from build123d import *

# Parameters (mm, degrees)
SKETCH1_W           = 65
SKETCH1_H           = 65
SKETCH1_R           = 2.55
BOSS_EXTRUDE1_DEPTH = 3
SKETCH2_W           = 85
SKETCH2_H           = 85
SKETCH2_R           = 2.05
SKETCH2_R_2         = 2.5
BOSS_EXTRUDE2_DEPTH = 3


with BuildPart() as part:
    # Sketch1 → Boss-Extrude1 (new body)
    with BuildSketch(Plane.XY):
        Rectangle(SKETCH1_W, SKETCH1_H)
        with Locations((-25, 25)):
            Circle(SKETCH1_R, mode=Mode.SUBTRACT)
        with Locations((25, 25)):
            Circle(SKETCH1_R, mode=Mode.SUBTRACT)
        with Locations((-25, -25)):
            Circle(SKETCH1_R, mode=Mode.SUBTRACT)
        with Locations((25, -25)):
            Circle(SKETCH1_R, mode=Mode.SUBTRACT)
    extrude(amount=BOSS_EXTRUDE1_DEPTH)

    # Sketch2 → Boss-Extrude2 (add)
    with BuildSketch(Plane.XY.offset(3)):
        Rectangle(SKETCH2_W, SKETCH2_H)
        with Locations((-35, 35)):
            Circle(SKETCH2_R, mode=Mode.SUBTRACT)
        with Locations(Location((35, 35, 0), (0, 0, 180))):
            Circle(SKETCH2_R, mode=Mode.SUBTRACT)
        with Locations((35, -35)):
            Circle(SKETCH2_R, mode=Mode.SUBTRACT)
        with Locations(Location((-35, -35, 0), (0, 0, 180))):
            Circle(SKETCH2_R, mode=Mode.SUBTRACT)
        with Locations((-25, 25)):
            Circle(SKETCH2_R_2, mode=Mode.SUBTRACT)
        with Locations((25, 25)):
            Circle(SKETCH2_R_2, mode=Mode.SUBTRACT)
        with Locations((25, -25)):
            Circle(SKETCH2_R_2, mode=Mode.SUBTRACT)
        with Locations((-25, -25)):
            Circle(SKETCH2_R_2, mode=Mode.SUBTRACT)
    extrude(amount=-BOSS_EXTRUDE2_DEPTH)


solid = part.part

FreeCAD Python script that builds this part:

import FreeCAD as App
import Part
import Sketcher

V = App.Vector

doc = App.newDocument("Part")
params = doc.addObject("Spreadsheet::Sheet", "Params")
for row, (alias, value) in enumerate([
    ("sketch1_diameter", "5.1 mm"),
    ("sketch1_width", "65 mm"),
    ("pad1_length", "3 mm"),
    ("sketch2_diameter", "5 mm"),
    ("sketch2_diameter2", "4.1 mm"),
    ("sketch2_width", "85 mm"),
    ("pad2_length", "3 mm"),
], start=1):
    params.set(f"A{row}", alias)
    params.set(f"B{row}", "=" + value)
    params.setAlias(f"B{row}", alias)

body = doc.addObject("PartDesign::Body", "Body")

sketch1 = body.newObject("Sketcher::SketchObject", "Sketch")
sketch1.AttachmentSupport = (doc.getObject("XY_Plane"), [""])
sketch1.MapMode = "FlatFace"
sketch1.addGeometry(Part.LineSegment(V(-32.5, 32.5, 0), V(-32.5, -32.5, 0)), False)
sketch1.addGeometry(Part.LineSegment(V(-32.5, -32.5, 0), V(32.5, -32.5, 0)), False)
sketch1.addGeometry(Part.LineSegment(V(32.5, -32.5, 0), V(32.5, 32.5, 0)), False)
sketch1.addGeometry(Part.LineSegment(V(32.5, 32.5, 0), V(-32.5, 32.5, 0)), False)
sketch1.addGeometry(Part.Circle(V(-25, -25, 0), V(0, 0, 1), 2.55), False)
sketch1.addGeometry(Part.Circle(V(25, -25, 0), V(0, 0, 1), 2.55), False)
sketch1.addGeometry(Part.Circle(V(-25, 25, 0), V(0, 0, 1), 2.55), False)
sketch1.addGeometry(Part.Circle(V(25, 25, 0), V(0, 0, 1), 2.55), False)
sketch1.addConstraint(Sketcher.Constraint("Coincident", 0, 2, 1, 1))
sketch1.addConstraint(Sketcher.Constraint("Coincident", 1, 2, 2, 1))
sketch1.addConstraint(Sketcher.Constraint("Coincident", 2, 2, 3, 1))
sketch1.addConstraint(Sketcher.Constraint("Coincident", 3, 2, 0, 1))
sketch1.addConstraint(Sketcher.Constraint("Vertical", 0))
sketch1.addConstraint(Sketcher.Constraint("Horizontal", 1))
sketch1.addConstraint(Sketcher.Constraint("Vertical", 2))
sketch1.addConstraint(Sketcher.Constraint("Horizontal", 3))
sketch1.addConstraint(Sketcher.Constraint("Equal", 4, 5))
sketch1.addConstraint(Sketcher.Constraint("Equal", 5, 6))
sketch1.addConstraint(Sketcher.Constraint("Equal", 6, 7))
sketch1.addConstraint(Sketcher.Constraint("Symmetric", 5, 3, 6, 3, -1, 1))
sketch1.addConstraint(Sketcher.Constraint("Symmetric", 4, 3, 7, 3, -1, 1))
sketch1.addConstraint(Sketcher.Constraint("Symmetric", 0, 2, 2, 2, -1, 1))
sketch1.addConstraint(Sketcher.Constraint("Symmetric", 4, 3, 5, 3, -2))
sketch1.addConstraint(Sketcher.Constraint("Equal", 3, 0))
sketch1.addConstraint(Sketcher.Constraint("Diameter", 4, 5.1))
sketch1.addConstraint(Sketcher.Constraint("DistanceX", 1, 1, 1, 2, 65.0))
sketch1.addConstraint(Sketcher.Constraint("DistanceX", 4, 3, -1, 1, 25.0))
sketch1.addConstraint(Sketcher.Constraint("DistanceY", 4, 3, -1, 1, 25.0))
sketch1.setExpression("Constraints[16]", "Params.sketch1_diameter")
sketch1.setExpression("Constraints[17]", "Params.sketch1_width")
pad1 = body.newObject("PartDesign::Pad", "Pad")
pad1.Profile = sketch1
pad1.setExpression("Length", "Params.pad1_length")

sketch2 = body.newObject("Sketcher::SketchObject", "Sketch001")
sketch2.AttachmentSupport = (doc.getObject("XY_Plane"), [""])
sketch2.MapMode = "FlatFace"
sketch2.AttachmentOffset = App.Placement(V(0, 0, 3), App.Rotation())
sketch2.addGeometry(Part.LineSegment(V(-42.5, 42.5, 0), V(-42.5, -42.5, 0)), False)
sketch2.addGeometry(Part.LineSegment(V(-42.5, -42.5, 0), V(42.5, -42.5, 0)), False)
sketch2.addGeometry(Part.LineSegment(V(42.5, -42.5, 0), V(42.5, 42.5, 0)), False)
sketch2.addGeometry(Part.LineSegment(V(42.5, 42.5, 0), V(-42.5, 42.5, 0)), False)
sketch2.addGeometry(Part.Circle(V(-35, -35, 0), V(0, 0, 1), 2.05), False)
sketch2.addGeometry(Part.Circle(V(-25, -25, 0), V(0, 0, 1), 2.5), False)
sketch2.addGeometry(Part.Circle(V(35, -35, 0), V(0, 0, 1), 2.05), False)
sketch2.addGeometry(Part.Circle(V(25, -25, 0), V(0, 0, 1), 2.5), False)
sketch2.addGeometry(Part.Circle(V(-25, 25, 0), V(0, 0, 1), 2.5), False)
sketch2.addGeometry(Part.Circle(V(-35, 35, 0), V(0, 0, 1), 2.05), False)
sketch2.addGeometry(Part.Circle(V(25, 25, 0), V(0, 0, 1), 2.5), False)
sketch2.addGeometry(Part.Circle(V(35, 35, 0), V(0, 0, 1), 2.05), False)
sketch2.addConstraint(Sketcher.Constraint("Coincident", 0, 2, 1, 1))
sketch2.addConstraint(Sketcher.Constraint("Coincident", 1, 2, 2, 1))
sketch2.addConstraint(Sketcher.Constraint("Coincident", 2, 2, 3, 1))
sketch2.addConstraint(Sketcher.Constraint("Coincident", 3, 2, 0, 1))
sketch2.addConstraint(Sketcher.Constraint("Vertical", 0))
sketch2.addConstraint(Sketcher.Constraint("Horizontal", 1))
sketch2.addConstraint(Sketcher.Constraint("Vertical", 2))
sketch2.addConstraint(Sketcher.Constraint("Horizontal", 3))
sketch2.addConstraint(Sketcher.Constraint("Equal", 4, 6))
sketch2.addConstraint(Sketcher.Constraint("Equal", 5, 7))
sketch2.addConstraint(Sketcher.Constraint("Equal", 7, 8))
sketch2.addConstraint(Sketcher.Constraint("Equal", 6, 9))
sketch2.addConstraint(Sketcher.Constraint("Equal", 8, 10))
sketch2.addConstraint(Sketcher.Constraint("Equal", 9, 11))
sketch2.addConstraint(Sketcher.Constraint("Symmetric", 7, 3, 8, 3, -1, 1))
sketch2.addConstraint(Sketcher.Constraint("Symmetric", 6, 3, 9, 3, -1, 1))
sketch2.addConstraint(Sketcher.Constraint("Symmetric", 5, 3, 10, 3, -1, 1))
sketch2.addConstraint(Sketcher.Constraint("Symmetric", 4, 3, 11, 3, -1, 1))
sketch2.addConstraint(Sketcher.Constraint("Symmetric", 0, 2, 2, 2, -1, 1))
sketch2.addConstraint(Sketcher.Constraint("Symmetric", 4, 3, 6, 3, -2))
sketch2.addConstraint(Sketcher.Constraint("Symmetric", 5, 3, 7, 3, -2))
sketch2.addConstraint(Sketcher.Constraint("Equal", 3, 0))
sketch2.addConstraint(Sketcher.Constraint("Diameter", 5, 5.0))
sketch2.addConstraint(Sketcher.Constraint("Diameter", 4, 4.1))
sketch2.addConstraint(Sketcher.Constraint("DistanceX", 1, 1, 1, 2, 85.0))
sketch2.addConstraint(Sketcher.Constraint("DistanceX", 4, 3, -1, 1, 35.0))
sketch2.addConstraint(Sketcher.Constraint("DistanceY", 4, 3, -1, 1, 35.0))
sketch2.addConstraint(Sketcher.Constraint("DistanceX", 5, 3, -1, 1, 25.0))
sketch2.addConstraint(Sketcher.Constraint("DistanceY", 5, 3, -1, 1, 25.0))
sketch2.setExpression("Constraints[22]", "Params.sketch2_diameter")
sketch2.setExpression("Constraints[23]", "Params.sketch2_diameter2")
sketch2.setExpression("Constraints[24]", "Params.sketch2_width")
pad2 = body.newObject("PartDesign::Pad", "Pad001")
pad2.Profile = sketch2
pad2.setExpression("Length", "Params.pad2_length")
pad2.Reversed = True

doc.recompute()
